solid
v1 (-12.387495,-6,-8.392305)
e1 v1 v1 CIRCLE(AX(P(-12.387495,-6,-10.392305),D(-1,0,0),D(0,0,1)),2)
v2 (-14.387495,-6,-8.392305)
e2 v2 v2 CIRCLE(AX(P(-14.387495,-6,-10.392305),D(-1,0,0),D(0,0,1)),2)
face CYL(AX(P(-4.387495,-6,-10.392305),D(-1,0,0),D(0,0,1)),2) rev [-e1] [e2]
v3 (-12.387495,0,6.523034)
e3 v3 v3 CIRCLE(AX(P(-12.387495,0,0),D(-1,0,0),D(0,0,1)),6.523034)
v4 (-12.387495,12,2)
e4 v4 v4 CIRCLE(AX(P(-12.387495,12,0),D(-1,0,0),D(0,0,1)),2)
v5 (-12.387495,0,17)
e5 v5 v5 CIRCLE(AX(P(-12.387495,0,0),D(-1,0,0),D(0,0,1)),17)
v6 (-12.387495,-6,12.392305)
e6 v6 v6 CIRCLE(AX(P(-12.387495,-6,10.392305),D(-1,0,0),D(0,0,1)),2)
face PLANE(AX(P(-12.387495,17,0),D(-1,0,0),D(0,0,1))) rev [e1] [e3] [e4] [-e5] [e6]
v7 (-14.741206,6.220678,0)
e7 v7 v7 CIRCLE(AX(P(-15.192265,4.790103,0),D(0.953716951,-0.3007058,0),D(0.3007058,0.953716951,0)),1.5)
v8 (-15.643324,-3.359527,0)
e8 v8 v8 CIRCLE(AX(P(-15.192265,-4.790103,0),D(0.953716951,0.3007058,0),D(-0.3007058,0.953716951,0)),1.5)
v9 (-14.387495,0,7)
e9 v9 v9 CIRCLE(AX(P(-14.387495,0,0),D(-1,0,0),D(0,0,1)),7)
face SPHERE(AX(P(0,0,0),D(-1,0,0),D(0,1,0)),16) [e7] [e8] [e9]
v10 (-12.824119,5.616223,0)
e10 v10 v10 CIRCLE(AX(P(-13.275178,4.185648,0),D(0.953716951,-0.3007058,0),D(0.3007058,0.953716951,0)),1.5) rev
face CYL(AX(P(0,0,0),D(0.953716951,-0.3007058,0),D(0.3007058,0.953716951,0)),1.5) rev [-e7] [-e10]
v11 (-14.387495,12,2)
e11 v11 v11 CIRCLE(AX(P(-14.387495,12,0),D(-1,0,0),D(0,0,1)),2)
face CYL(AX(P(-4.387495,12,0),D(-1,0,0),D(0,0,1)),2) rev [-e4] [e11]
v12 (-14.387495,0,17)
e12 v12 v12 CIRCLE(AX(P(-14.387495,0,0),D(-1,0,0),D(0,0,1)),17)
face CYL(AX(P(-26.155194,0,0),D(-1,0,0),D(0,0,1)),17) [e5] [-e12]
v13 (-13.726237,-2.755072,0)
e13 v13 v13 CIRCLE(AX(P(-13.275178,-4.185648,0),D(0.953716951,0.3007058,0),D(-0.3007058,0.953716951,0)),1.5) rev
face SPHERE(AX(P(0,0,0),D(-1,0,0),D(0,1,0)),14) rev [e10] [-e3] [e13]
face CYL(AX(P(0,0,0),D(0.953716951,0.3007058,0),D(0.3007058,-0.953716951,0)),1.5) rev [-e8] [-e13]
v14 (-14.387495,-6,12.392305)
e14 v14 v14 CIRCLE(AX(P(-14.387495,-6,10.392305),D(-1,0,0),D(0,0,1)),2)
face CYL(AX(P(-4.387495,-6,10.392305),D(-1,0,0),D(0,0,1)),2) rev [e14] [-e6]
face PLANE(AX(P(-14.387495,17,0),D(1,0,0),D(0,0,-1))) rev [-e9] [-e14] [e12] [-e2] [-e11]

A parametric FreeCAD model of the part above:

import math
import FreeCAD as App
import Part
import Sketcher
from FreeCAD import Vector
Q = App.Units.Quantity


def add_polygon(sketch, points):
    """Adds a closed chain of lines whose ends are joined by coincident constraints."""
    first, n = sketch.GeometryCount, len(points)
    for a, b in zip(points, points[1:] + points[:1]):
        sketch.addGeometry(Part.LineSegment(App.Vector(*a, 0), App.Vector(*b, 0)), False)
    for i in range(n):
        sketch.addConstraint(Sketcher.Constraint("Coincident", first + i, 2, first + (i + 1) % n, 1))

doc = App.newDocument("Part")
params = doc.addObject("Spreadsheet::Sheet", "Params")
for row, (alias, value) in enumerate([
    ("sketch1_radius", "16 mm"),
    ("sketch1_radius2", "14 mm"),
    ("sketch1_height", "10 mm"),
    ("revolution_angle", "360 deg"),
    ("sketch2_length", "8 mm"),
    ("sketch2_length2", "1.5 mm"),
    ("groove_angle", "360 deg"),
    ("sketch3_diameter", "4 mm"),
    ("pocket1_length", "10 mm"),
], start=1):
    params.set(f"A{row}", alias)
    params.set(f"B{row}", "=" + value)
    params.setAlias(f"B{row}", alias)

body = doc.addObject("PartDesign::Body", "Body")

sketch1 = body.newObject("Sketcher::SketchObject", "Sketch")
sketch1.AttachmentSupport = (doc.getObject("XY_Plane"), [""])
sketch1.MapMode = "FlatFace"
sketch1.addGeometry(Part.LineSegment(Vector(-12.4, 17, 0), Vector(-14.4, 17, 0)), False)
sketch1.addGeometry(Part.LineSegment(Vector(-14.4, 17, 0), Vector(-14.4, 7, 0)), False)
sketch1.addGeometry(Part.ArcOfCircle(Part.Circle(Vector(0, 0, 0), Vector(0, 0, 1), 16), math.radians(154), math.radians(180)), False)
sketch1.addGeometry(Part.LineSegment(Vector(-16, 0, 0), Vector(-14, 0, 0)), False)
sketch1.addGeometry(Part.ArcOfCircle(Part.Circle(Vector(0, 0, 0), Vector(0, 0, 1), 14), math.radians(152), math.radians(180)), False)
sketch1.addGeometry(Part.LineSegment(Vector(-12.4, 6.5, 0), Vector(-12.4, 17, 0)), False)
sketch1.addConstraint(Sketcher.Constraint("Coincident", 0, 2, 1, 1))
sketch1.addConstraint(Sketcher.Constraint("Coincident", 1, 2, 2, 1))
sketch1.addConstraint(Sketcher.Constraint("Coincident", 2, 2, 3, 1))
sketch1.addConstraint(Sketcher.Constraint("Coincident", 3, 2, 4, 2))
sketch1.addConstraint(Sketcher.Constraint("Coincident", 4, 1, 5, 1))
sketch1.addConstraint(Sketcher.Constraint("Coincident", 5, 2, 0, 1))
sketch1.addConstraint(Sketcher.Constraint("Horizontal", 0))
sketch1.addConstraint(Sketcher.Constraint("Vertical", 1))
sketch1.addConstraint(Sketcher.Constraint("Horizontal", 3))
sketch1.addConstraint(Sketcher.Constraint("Vertical", 5))
sketch1.addConstraint(Sketcher.Constraint("Coincident", 2, 3, -1, 1))
sketch1.addConstraint(Sketcher.Constraint("Coincident", 4, 3, -1, 1))
sketch1.addConstraint(Sketcher.Constraint("PointOnObject", 2, 2, -1))
sketch1.addConstraint(Sketcher.Constraint("Equal", 0, 3))
sketch1.addConstraint(Sketcher.Constraint("Radius", 2, 16.0))
sketch1.addConstraint(Sketcher.Constraint("Radius", 4, 14.0))
sketch1.addConstraint(Sketcher.Constraint("DistanceY", 1, 2, 1, 1, 10.0))
sketch1.addConstraint(Sketcher.Constraint("DistanceY", -1, 1, 0, 2, 17.0))
sketch1.setExpression("Constraints[14]", "Params.sketch1_radius")
sketch1.setExpression("Constraints[15]", "Params.sketch1_radius2")
sketch1.setExpression("Constraints[16]", "Params.sketch1_height")
revolution = body.newObject("PartDesign::Revolution", "Revolution")
revolution.Profile = sketch1
revolution.ReferenceAxis = (sketch1, ["H_Axis"])
revolution.setExpression("Angle", "Params.revolution_angle")

sketch2 = body.newObject("Sketcher::SketchObject", "Sketch001")
sketch2.AttachmentSupport = (doc.getObject("XY_Plane"), [""])
sketch2.MapMode = "FlatFace"
add_polygon(sketch2, [(-11, 5), (-18.6, 7.4), (-19.1, 6), (-11.4, 3.6)])
sketch2.addGeometry(Part.LineSegment(Vector(-11.4, 3.6, 0), Vector(-19.1, 6, 0)), True)
sketch2.addConstraint(Sketcher.Constraint("Coincident", 4, 1, 2, 2))
sketch2.addConstraint(Sketcher.Constraint("Coincident", 4, 2, 1, 2))
sketch2.addConstraint(Sketcher.Constraint("Perpendicular", 0, 1))
sketch2.addConstraint(Sketcher.Constraint("Perpendicular", 1, 2))
sketch2.addConstraint(Sketcher.Constraint("Perpendicular", 2, 3))
sketch2.addConstraint(Sketcher.Constraint("Distance", 0, 8.0))
sketch2.addConstraint(Sketcher.Constraint("Angle", 0, Q("162.5 deg")))
sketch2.addConstraint(Sketcher.Constraint("Distance", 1, 1.5))
sketch2.addConstraint(Sketcher.Constraint("DistanceX", 0, 2, -1, 1, 18.62328))
sketch2.addConstraint(Sketcher.Constraint("DistanceY", -1, 1, 0, 2, 7.444691))
sketch2.setExpression("Constraints[9]", "Params.sketch2_length")
sketch2.setExpression("Constraints[11]", "Params.sketch2_length2")
groove = body.newObject("PartDesign::Groove", "Groove")
groove.Profile = sketch2
groove.ReferenceAxis = (sketch2, ["Axis0"])
groove.setExpression("Angle", "Params.groove_angle")
doc.recompute()

mirrored = body.newObject("PartDesign::Mirrored", "Mirrored")
mirrored.Originals = [groove]
mirrored.MirrorPlane = (doc.getObject("XZ_Plane"), [""])
body.Tip = mirrored

sketch3 = body.newObject("Sketcher::SketchObject", "Sketch002")
sketch3.AttachmentSupport = (doc.getObject("YZ_Plane"), [""])
sketch3.MapMode = "FlatFace"
sketch3.AttachmentOffset = App.Placement(Vector(0, 0, -14.387495), App.Rotation())
sketch3.addGeometry(Part.Circle(Vector(12, 0, 0), Vector(0, 0, 1), 2), False)
sketch3.addGeometry(Part.Circle(Vector(-6, 10.4, 0), Vector(0, 0, 1), 2), False)
sketch3.addGeometry(Part.Circle(Vector(-6, -10.4, 0), Vector(0, 0, 1), 2), False)
sketch3.addConstraint(Sketcher.Constraint("Equal", 0, 1))
sketch3.addConstraint(Sketcher.Constraint("Equal", 1, 2))
sketch3.addConstraint(Sketcher.Constraint("Symmetric", 1, 3, 2, 3, -1))
sketch3.addConstraint(Sketcher.Constraint("PointOnObject", 0, 3, -1))
sketch3.addConstraint(Sketcher.Constraint("Diameter", 0, 4.0))
sketch3.addConstraint(Sketcher.Constraint("DistanceX", -1, 1, 0, 3, 12.0))
sketch3.addConstraint(Sketcher.Constraint("DistanceX", 1, 3, -1, 1, 6.0))
sketch3.addConstraint(Sketcher.Constraint("DistanceY", 2, 3, 1, 3, 20.78461))
sketch3.setExpression("Constraints[4]", "Params.sketch3_diameter")
pocket1 = body.newObject("PartDesign::Pocket", "Pocket")
pocket1.Profile = sketch3
pocket1.setExpression("Length", "Params.pocket1_length")
pocket1.Reversed = True

doc.recompute()
